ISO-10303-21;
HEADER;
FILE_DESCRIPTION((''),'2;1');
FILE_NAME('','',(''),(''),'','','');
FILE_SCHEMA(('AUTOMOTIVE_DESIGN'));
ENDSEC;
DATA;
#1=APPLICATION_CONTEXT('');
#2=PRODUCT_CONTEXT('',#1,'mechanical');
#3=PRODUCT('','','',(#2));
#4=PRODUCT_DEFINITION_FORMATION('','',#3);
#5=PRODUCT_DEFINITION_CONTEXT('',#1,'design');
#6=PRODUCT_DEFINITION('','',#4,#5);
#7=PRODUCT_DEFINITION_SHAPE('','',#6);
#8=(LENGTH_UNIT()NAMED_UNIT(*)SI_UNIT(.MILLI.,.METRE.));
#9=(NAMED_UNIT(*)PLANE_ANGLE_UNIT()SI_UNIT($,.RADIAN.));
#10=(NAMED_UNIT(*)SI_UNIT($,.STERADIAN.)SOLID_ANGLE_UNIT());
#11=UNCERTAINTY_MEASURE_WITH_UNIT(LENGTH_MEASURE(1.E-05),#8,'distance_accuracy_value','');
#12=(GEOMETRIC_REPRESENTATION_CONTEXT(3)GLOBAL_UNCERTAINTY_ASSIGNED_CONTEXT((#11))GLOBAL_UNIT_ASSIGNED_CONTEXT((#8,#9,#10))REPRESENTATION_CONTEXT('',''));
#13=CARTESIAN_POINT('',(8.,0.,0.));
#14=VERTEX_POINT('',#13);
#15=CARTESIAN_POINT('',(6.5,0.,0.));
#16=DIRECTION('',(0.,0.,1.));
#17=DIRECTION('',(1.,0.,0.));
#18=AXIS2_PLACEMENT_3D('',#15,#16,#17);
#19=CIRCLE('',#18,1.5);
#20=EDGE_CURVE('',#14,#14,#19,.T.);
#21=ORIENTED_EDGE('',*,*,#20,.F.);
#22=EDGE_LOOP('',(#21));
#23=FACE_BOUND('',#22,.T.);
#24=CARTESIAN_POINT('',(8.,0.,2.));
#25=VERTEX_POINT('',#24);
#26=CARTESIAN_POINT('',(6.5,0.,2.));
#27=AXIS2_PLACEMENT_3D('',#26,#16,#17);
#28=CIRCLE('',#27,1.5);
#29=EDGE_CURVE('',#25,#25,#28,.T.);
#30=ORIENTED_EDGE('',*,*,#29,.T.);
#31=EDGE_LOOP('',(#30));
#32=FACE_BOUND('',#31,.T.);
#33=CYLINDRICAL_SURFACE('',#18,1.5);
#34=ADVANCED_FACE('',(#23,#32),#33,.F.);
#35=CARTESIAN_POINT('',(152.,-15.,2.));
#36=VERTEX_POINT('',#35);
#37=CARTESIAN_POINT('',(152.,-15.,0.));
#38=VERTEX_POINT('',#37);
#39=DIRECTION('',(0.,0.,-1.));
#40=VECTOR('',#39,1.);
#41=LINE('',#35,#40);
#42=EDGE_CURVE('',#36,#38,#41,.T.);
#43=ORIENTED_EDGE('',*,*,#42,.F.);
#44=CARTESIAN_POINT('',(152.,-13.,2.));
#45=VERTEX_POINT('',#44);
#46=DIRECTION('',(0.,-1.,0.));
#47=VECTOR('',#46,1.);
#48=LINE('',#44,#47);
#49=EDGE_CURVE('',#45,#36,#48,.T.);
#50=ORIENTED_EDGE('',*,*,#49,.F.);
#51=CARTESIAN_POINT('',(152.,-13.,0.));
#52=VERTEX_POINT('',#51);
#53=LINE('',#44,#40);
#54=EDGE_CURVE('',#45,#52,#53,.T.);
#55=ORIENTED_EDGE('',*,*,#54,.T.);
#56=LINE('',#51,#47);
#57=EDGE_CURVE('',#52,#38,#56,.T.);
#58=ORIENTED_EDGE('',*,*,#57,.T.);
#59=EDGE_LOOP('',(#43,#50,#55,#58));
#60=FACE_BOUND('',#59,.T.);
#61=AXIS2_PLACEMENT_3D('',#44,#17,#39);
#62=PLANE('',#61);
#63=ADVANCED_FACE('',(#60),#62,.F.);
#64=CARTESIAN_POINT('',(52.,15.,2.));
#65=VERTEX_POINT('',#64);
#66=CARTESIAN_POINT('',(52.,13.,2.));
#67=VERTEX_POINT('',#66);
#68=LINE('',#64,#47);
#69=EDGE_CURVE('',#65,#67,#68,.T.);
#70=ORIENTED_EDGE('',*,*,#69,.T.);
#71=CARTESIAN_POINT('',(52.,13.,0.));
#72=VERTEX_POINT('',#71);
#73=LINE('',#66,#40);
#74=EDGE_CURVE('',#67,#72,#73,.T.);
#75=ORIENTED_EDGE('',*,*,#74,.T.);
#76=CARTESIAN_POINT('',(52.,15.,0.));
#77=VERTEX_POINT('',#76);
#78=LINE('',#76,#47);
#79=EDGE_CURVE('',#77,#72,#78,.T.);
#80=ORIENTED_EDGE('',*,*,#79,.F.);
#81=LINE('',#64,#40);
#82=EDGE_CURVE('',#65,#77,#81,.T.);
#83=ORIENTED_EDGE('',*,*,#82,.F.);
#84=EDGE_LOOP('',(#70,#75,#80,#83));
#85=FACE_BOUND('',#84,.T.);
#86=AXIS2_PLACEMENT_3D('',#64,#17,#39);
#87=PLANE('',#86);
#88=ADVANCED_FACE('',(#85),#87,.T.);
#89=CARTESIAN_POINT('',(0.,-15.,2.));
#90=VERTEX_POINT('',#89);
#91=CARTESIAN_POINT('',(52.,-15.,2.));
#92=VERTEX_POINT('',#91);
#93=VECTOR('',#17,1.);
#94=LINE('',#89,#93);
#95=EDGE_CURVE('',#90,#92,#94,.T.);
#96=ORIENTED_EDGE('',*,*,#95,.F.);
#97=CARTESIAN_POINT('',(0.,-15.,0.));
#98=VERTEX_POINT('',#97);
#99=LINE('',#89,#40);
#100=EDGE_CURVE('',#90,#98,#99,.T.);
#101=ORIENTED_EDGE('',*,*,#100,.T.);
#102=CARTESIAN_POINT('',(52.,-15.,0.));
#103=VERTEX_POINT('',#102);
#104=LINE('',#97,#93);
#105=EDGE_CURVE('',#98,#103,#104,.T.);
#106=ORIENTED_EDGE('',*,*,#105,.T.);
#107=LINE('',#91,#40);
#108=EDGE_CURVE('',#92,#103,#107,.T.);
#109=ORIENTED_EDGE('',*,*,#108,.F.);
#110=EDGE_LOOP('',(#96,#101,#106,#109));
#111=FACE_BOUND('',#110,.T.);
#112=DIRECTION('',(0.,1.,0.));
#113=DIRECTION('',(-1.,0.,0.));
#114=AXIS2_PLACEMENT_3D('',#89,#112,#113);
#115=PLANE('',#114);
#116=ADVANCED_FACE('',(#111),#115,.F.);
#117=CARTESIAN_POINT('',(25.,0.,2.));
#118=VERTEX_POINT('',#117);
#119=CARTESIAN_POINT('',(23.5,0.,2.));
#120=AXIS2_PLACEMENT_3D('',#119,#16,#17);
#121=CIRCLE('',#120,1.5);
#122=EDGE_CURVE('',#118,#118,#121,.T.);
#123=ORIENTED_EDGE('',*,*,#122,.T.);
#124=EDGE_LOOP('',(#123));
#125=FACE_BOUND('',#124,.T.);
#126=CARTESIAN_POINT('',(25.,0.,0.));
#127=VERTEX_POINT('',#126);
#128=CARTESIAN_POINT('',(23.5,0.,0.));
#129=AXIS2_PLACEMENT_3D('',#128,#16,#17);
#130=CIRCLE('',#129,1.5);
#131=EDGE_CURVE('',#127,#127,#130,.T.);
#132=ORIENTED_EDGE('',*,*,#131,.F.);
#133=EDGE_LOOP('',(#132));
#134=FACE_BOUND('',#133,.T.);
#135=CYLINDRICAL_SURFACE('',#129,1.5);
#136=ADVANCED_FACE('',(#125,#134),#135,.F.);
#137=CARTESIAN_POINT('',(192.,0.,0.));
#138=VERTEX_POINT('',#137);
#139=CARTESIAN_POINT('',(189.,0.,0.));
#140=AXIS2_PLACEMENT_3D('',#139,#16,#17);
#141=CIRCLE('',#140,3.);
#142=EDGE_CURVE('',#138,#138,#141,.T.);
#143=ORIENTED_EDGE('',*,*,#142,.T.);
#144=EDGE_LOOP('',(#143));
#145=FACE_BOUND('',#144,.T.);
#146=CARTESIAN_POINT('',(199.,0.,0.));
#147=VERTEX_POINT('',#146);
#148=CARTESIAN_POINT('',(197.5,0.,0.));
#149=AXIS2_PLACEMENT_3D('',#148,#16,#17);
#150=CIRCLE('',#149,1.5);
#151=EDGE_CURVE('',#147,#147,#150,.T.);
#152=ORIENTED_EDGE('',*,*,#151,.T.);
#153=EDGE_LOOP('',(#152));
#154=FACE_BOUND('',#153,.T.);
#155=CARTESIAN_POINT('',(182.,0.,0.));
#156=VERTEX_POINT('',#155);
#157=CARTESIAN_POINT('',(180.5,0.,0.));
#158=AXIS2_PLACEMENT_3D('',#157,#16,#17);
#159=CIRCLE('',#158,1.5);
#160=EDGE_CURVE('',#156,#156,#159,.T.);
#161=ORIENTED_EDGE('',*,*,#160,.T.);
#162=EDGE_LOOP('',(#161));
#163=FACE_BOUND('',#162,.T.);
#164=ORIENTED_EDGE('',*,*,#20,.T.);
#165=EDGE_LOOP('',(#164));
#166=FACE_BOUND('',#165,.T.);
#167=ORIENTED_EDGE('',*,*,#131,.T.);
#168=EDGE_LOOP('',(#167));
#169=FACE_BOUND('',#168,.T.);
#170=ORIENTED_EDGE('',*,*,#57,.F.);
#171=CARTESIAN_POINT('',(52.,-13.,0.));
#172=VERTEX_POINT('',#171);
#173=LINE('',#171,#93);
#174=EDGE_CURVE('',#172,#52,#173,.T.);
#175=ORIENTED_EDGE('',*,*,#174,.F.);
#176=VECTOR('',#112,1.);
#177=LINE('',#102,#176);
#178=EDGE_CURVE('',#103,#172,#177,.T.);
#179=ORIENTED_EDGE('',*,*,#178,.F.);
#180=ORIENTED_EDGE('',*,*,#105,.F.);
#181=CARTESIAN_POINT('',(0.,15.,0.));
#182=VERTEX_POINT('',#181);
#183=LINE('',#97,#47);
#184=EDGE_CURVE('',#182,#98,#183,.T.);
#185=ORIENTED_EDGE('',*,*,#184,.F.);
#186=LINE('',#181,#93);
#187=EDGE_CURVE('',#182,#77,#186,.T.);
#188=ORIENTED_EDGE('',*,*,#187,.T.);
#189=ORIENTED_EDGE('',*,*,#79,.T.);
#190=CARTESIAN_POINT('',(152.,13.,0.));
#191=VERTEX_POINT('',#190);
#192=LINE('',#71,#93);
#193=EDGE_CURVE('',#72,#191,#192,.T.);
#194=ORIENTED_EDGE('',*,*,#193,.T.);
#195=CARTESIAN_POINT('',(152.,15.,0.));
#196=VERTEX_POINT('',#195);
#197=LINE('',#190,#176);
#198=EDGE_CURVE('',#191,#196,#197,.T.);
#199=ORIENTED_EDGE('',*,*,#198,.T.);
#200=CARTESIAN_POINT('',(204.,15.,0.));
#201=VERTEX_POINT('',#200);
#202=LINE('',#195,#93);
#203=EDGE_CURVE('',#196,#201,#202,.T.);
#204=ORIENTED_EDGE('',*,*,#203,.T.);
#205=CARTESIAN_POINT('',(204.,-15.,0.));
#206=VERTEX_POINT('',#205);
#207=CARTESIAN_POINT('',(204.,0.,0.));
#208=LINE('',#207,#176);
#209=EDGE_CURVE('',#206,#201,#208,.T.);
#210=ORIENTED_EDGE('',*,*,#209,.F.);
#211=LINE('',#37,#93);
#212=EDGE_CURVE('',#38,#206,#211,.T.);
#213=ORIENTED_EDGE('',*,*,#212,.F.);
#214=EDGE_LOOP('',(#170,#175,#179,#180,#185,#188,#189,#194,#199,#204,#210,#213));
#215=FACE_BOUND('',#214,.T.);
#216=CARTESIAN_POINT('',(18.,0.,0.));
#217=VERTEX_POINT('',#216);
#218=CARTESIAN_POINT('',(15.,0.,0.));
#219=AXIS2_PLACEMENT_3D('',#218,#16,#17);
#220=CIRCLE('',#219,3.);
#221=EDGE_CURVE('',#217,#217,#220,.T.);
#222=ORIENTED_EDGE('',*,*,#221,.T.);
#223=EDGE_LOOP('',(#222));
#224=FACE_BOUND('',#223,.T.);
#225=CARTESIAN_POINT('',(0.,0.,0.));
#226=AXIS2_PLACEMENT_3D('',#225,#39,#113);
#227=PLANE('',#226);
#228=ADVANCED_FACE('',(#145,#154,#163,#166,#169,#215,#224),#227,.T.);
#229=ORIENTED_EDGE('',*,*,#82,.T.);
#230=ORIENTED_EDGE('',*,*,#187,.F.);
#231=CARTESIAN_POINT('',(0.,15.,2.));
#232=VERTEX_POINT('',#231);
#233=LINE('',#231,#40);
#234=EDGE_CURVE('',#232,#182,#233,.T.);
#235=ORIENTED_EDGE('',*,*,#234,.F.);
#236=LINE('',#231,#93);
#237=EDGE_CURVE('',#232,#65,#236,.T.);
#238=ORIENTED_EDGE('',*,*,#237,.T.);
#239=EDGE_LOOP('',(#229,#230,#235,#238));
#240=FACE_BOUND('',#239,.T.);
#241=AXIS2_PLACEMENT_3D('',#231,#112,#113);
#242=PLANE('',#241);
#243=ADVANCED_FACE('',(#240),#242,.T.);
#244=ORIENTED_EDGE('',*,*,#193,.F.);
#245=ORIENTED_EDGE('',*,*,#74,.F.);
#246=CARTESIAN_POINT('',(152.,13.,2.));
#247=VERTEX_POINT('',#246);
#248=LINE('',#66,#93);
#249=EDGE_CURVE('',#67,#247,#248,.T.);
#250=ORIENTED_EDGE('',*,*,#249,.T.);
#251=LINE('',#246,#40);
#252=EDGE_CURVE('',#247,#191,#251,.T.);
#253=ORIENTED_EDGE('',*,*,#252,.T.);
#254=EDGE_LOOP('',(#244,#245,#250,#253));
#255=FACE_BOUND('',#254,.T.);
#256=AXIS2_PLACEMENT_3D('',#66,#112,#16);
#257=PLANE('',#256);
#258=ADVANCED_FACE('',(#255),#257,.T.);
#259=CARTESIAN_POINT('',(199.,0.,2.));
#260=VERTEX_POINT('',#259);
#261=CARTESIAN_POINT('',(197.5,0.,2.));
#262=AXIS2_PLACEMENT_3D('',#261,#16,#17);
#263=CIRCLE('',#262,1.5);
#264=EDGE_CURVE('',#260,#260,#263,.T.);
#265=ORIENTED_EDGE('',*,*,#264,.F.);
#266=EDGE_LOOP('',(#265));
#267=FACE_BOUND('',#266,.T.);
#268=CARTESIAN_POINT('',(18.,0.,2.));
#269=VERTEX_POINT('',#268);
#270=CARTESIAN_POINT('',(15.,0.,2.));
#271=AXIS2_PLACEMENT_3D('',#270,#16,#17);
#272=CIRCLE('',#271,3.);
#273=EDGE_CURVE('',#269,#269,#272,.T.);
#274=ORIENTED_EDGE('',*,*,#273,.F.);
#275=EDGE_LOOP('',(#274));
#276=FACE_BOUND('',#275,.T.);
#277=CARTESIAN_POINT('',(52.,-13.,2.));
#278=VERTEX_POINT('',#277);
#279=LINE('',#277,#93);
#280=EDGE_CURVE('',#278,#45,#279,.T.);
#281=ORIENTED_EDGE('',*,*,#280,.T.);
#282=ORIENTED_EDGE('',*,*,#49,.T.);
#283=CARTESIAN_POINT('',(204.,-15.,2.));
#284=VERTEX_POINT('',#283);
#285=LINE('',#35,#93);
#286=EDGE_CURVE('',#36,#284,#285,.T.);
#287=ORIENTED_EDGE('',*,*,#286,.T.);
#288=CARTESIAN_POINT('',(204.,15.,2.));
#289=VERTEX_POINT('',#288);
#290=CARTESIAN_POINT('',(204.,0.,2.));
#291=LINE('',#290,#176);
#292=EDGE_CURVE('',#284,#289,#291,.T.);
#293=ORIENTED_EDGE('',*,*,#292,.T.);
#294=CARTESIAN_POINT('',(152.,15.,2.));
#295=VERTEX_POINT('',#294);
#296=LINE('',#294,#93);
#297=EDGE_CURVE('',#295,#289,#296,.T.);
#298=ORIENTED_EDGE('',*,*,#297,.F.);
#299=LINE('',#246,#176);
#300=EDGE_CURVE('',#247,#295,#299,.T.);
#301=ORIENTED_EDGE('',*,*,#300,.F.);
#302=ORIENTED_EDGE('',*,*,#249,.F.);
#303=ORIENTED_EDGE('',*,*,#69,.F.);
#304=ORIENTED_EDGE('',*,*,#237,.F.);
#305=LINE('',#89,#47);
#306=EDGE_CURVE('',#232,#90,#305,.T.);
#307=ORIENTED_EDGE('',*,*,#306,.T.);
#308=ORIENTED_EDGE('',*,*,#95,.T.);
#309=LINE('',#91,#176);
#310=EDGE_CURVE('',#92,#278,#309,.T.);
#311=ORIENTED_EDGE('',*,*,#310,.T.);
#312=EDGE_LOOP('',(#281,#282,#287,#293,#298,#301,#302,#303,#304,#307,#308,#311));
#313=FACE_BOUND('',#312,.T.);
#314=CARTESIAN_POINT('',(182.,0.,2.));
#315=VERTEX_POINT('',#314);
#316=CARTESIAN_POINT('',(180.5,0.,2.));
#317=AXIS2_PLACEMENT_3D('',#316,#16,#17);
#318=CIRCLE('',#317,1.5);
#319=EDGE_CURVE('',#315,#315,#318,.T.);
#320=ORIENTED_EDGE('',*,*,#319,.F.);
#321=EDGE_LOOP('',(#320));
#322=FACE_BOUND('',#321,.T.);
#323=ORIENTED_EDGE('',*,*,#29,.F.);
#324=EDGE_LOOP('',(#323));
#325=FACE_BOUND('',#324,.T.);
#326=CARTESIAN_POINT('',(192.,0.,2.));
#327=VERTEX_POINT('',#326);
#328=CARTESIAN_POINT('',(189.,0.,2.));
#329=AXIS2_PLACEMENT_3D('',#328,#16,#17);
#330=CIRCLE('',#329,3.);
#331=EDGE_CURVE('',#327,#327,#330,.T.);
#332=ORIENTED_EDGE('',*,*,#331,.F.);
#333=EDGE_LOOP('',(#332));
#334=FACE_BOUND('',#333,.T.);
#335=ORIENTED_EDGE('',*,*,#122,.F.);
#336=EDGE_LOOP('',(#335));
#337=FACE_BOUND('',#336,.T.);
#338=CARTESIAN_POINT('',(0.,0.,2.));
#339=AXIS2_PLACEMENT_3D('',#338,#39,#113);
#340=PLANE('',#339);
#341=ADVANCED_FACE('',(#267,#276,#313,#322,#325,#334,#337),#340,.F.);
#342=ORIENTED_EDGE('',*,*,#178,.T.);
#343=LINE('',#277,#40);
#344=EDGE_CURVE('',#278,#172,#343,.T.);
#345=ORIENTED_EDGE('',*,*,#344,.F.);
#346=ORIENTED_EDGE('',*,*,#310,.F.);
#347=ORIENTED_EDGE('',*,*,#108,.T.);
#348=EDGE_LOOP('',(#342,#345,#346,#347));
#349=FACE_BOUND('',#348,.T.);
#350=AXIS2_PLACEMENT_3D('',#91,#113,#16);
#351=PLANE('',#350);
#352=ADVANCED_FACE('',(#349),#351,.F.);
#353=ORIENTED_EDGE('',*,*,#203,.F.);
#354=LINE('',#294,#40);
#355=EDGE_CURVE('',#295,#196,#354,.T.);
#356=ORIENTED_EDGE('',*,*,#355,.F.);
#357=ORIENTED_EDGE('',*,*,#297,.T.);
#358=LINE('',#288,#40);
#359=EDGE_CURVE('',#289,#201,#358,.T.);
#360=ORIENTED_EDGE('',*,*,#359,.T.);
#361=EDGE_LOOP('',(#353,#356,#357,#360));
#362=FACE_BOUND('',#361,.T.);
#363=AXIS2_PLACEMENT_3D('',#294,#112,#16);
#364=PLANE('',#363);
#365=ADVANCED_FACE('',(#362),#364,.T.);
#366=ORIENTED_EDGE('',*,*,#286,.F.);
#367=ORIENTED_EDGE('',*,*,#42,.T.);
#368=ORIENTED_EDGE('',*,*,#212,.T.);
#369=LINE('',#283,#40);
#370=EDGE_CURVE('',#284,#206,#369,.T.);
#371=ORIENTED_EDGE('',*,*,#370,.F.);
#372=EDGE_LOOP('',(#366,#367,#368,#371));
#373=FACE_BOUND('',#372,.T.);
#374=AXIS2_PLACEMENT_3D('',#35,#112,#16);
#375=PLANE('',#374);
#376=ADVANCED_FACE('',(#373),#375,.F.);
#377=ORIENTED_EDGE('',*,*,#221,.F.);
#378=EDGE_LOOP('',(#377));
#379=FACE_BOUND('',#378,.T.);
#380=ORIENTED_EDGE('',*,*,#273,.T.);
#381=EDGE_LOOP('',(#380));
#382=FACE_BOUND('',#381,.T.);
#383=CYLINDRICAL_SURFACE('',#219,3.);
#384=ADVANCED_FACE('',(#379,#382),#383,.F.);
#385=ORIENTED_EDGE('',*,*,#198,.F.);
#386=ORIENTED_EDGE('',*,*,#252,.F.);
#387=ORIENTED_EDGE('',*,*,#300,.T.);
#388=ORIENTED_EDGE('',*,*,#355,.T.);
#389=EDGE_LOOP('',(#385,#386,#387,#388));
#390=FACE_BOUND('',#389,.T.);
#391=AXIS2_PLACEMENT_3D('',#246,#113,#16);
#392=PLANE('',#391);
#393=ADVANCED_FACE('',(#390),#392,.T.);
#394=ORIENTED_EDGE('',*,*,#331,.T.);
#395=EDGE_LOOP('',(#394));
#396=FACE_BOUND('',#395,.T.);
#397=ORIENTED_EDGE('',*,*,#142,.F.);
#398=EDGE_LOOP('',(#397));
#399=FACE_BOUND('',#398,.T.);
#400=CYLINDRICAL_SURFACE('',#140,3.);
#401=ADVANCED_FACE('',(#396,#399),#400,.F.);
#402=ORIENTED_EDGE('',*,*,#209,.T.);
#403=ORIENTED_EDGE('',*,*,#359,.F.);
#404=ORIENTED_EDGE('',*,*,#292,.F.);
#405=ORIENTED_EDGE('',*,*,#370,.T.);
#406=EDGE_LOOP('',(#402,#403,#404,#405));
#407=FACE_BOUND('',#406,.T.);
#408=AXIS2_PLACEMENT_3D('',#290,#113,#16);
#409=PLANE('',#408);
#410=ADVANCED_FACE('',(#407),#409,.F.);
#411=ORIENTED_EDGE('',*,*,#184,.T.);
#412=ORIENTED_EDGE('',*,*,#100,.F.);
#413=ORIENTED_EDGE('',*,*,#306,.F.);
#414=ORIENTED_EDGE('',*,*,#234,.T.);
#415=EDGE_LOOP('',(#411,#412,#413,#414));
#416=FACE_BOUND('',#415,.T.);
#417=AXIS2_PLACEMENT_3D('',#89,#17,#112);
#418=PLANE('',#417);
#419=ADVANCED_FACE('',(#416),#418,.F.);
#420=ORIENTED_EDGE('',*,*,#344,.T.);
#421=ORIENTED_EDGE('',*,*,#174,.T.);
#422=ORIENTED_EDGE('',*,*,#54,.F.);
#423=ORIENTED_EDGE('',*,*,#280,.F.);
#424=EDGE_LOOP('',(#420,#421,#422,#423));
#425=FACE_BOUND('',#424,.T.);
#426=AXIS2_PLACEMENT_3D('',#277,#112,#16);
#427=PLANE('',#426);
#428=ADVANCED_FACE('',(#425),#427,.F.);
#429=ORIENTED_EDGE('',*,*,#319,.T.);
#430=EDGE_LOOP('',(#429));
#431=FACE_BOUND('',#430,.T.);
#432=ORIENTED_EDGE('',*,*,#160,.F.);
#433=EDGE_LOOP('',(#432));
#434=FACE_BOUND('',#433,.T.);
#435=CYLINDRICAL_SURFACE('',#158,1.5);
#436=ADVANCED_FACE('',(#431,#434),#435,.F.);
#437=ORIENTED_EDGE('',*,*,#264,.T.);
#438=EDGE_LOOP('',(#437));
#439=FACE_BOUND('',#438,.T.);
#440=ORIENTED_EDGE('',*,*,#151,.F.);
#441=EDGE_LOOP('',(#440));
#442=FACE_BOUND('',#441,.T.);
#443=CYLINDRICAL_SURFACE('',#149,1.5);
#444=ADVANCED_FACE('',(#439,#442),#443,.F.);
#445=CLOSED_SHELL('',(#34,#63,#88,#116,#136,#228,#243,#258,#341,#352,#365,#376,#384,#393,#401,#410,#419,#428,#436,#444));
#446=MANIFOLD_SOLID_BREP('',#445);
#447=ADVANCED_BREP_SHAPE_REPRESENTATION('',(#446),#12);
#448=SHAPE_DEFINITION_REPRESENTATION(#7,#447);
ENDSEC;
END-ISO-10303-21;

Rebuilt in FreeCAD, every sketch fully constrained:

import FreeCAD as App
import Part
import Sketcher
from FreeCAD import Vector

doc = App.newDocument("Part")
body = doc.addObject("PartDesign::Body", "Body")

# Sketch on XY plane
sketch1 = body.newObject("Sketcher::SketchObject", "Sketch")
sketch1.AttachmentSupport = (doc.getObject("XY_Plane"), [""])
sketch1.MapMode = "FlatFace"
sketch1.addGeometry([
    Part.LineSegment(Vector(0, 0, 0), Vector(0, -15, 0)),  # 0
    Part.LineSegment(Vector(0, -15, 0), Vector(52, -15, 0)),  # 1
    Part.LineSegment(Vector(52, -15, 0), Vector(52, -13, 0)),  # 2
    Part.LineSegment(Vector(52, -13, 0), Vector(152, -13, 0)),  # 3
    Part.LineSegment(Vector(152, -13, 0), Vector(152, -15, 0)),  # 4
    Part.LineSegment(Vector(152, -15, 0), Vector(204, -15, 0)),  # 5
    Part.LineSegment(Vector(204, -15, 0), Vector(204, 0, 0)),  # 6
    Part.LineSegment(Vector(204, 0, 0), Vector(0, 0, 0)),  # 7
], False)
sketch1.addConstraint([
    Sketcher.Constraint("Coincident", 0, 2, 1, 1),
    Sketcher.Constraint("Coincident", 1, 2, 2, 1),
    Sketcher.Constraint("Coincident", 2, 2, 3, 1),
    Sketcher.Constraint("Coincident", 3, 2, 4, 1),
    Sketcher.Constraint("Coincident", 4, 2, 5, 1),
    Sketcher.Constraint("Coincident", 5, 2, 6, 1),
    Sketcher.Constraint("Coincident", 6, 2, 7, 1),
    Sketcher.Constraint("Coincident", 7, 2, 0, 1),
    Sketcher.Constraint("Vertical", 0),
    Sketcher.Constraint("Horizontal", 1),
    Sketcher.Constraint("Vertical", 2),
    Sketcher.Constraint("Horizontal", 3),
    Sketcher.Constraint("Vertical", 4),
    Sketcher.Constraint("Horizontal", 5),
    Sketcher.Constraint("Vertical", 6),
    Sketcher.Constraint("Horizontal", 7),
    Sketcher.Constraint("Coincident", 7, 2, -1, 1),
    Sketcher.Constraint("Horizontal", 1, 2, 4, 2),
    Sketcher.Constraint("Equal", 1, 5),
    Sketcher.Constraint("DistanceX", 1, 1, 1, 2, 52.0),
    Sketcher.Constraint("DistanceX", 3, 1, 3, 2, 100.0),
    Sketcher.Constraint("DistanceY", 0, 2, 0, 1, 15.0),
    Sketcher.Constraint("DistanceY", 2, 1, 2, 2, 2.0),
])
pad1 = body.newObject("PartDesign::Pad", "Pad")
pad1.Profile = sketch1
pad1.Length = 2
doc.recompute()

mirrored = body.newObject("PartDesign::Mirrored", "Mirrored")
mirrored.Originals = [pad1]
mirrored.MirrorPlane = (doc.getObject("XZ_Plane"), [""])
body.Tip = mirrored

# Sketch on XY plane
sketch2 = body.newObject("Sketcher::SketchObject", "Sketch001")
sketch2.AttachmentSupport = (doc.getObject("XY_Plane"), [""])
sketch2.MapMode = "FlatFace"
sketch2.AttachmentOffset = App.Placement(Vector(0, 0, 2), App.Rotation())
sketch2.addGeometry([
    Part.Circle(Vector(6.5, 0, 0), Vector(0, 0, 1), 1.5),  # 0
    Part.Circle(Vector(15, 0, 0), Vector(0, 0, 1), 3),  # 1
    Part.Circle(Vector(23.5, 0, 0), Vector(0, 0, 1), 1.5),  # 2
    Part.Circle(Vector(180.5, 0, 0), Vector(0, 0, 1), 1.5),  # 3
    Part.Circle(Vector(189, 0, 0), Vector(0, 0, 1), 3),  # 4
    Part.Circle(Vector(197.5, 0, 0), Vector(0, 0, 1), 1.5),  # 5
], False)
sketch2.addConstraint([
    Sketcher.Constraint("Equal", 0, 2),
    Sketcher.Constraint("Equal", 2, 3),
    Sketcher.Constraint("Equal", 1, 4),
    Sketcher.Constraint("Equal", 3, 5),
    Sketcher.Constraint("PointOnObject", 0, 3, -1),
    Sketcher.Constraint("PointOnObject", 1, 3, -1),
    Sketcher.Constraint("PointOnObject", 2, 3, -1),
    Sketcher.Constraint("PointOnObject", 3, 3, -1),
    Sketcher.Constraint("PointOnObject", 4, 3, -1),
    Sketcher.Constraint("PointOnObject", 5, 3, -1),
    Sketcher.Constraint("Diameter", 0, 3.0),
    Sketcher.Constraint("Diameter", 1, 6.0),
    Sketcher.Constraint("DistanceX", -1, 1, 1, 3, 15.0),
    Sketcher.Constraint("DistanceX", -1, 1, 4, 3, 189.0),
    Sketcher.Constraint("DistanceX", 0, 3, 2, 3, 17.0),
    Sketcher.Constraint("DistanceX", 2, 3, 3, 3, 157.0),
    Sketcher.Constraint("DistanceX", 3, 3, 5, 3, 17.0),
    Sketcher.Constraint("DistanceX", -1, 1, 0, 3, 6.5),
])
pocket1 = body.newObject("PartDesign::Pocket", "Pocket")
pocket1.Profile = sketch2
pocket1.Length = 2

doc.recompute()
